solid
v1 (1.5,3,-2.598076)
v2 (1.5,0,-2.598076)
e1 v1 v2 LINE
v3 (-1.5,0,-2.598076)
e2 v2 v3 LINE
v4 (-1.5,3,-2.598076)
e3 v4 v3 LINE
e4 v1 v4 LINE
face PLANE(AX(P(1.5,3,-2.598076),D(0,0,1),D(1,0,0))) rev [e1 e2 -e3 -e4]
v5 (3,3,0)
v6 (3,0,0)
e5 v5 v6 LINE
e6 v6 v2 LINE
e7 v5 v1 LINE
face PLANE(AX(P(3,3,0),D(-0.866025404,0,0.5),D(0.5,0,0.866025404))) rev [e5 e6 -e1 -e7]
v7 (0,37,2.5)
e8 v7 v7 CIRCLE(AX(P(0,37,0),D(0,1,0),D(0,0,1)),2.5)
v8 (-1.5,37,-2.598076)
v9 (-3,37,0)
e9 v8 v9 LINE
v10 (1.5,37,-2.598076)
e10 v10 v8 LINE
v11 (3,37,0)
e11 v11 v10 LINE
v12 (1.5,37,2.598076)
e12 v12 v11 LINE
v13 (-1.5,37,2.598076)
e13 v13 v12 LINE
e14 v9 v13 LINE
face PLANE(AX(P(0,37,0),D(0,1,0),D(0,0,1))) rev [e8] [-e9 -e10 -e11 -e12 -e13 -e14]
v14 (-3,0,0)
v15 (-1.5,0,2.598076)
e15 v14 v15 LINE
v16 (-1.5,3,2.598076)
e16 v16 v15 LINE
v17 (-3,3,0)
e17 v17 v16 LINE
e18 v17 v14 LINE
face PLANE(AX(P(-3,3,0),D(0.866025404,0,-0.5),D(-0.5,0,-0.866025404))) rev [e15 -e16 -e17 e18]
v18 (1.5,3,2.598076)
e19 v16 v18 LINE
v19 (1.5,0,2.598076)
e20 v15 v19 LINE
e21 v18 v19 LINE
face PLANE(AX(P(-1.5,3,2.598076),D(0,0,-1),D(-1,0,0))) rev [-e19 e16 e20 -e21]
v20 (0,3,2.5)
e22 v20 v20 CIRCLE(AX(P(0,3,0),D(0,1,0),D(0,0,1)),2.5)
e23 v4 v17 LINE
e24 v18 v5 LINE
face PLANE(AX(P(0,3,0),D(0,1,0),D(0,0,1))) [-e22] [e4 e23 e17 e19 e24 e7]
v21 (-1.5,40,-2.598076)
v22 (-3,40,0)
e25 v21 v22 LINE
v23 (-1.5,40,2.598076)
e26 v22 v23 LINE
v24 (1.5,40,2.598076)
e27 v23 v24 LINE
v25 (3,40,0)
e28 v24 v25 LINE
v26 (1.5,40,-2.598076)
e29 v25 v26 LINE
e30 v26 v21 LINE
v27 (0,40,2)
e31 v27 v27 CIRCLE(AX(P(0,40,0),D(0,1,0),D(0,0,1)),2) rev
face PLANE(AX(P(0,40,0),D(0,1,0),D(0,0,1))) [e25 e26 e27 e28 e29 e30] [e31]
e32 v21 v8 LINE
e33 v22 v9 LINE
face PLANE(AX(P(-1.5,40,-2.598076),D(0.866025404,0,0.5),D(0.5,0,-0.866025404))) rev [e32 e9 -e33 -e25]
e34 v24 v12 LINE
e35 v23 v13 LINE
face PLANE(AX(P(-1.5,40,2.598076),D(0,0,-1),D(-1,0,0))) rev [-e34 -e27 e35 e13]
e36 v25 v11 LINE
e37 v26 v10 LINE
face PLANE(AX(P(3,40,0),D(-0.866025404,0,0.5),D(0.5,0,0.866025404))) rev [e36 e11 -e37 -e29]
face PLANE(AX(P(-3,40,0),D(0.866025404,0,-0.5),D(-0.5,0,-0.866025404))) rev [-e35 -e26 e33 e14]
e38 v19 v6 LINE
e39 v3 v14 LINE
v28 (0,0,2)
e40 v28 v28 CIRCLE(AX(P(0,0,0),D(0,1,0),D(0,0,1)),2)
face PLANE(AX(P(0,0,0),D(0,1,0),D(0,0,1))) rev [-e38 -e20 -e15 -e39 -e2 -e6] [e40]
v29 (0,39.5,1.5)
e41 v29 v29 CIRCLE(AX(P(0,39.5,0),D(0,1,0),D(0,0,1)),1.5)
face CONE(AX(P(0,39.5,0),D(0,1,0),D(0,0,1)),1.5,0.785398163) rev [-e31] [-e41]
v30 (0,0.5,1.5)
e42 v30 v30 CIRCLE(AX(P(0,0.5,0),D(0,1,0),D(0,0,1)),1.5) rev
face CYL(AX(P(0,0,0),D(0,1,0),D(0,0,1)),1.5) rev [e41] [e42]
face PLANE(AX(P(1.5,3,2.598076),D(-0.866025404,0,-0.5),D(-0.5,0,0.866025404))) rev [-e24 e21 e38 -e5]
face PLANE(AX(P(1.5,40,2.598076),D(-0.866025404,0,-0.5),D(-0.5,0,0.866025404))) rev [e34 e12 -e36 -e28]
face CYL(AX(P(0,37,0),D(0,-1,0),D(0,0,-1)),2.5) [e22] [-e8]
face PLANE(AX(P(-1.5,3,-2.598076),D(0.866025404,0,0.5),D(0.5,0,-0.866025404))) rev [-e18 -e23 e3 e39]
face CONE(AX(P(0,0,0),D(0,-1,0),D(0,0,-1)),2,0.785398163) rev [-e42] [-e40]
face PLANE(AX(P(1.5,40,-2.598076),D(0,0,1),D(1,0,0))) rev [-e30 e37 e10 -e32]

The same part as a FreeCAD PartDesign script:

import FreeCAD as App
import Part
import Sketcher
Q = App.Units.Quantity


def edges_at(feature, points):
    """Names of the edges that pass closest to the given points."""
    edges = feature.Shape.Edges
    near = lambda p: min(range(len(edges)), key=lambda i: edges[i].distToShape(Part.Vertex(*p))[0])
    return sorted({f"Edge{near(p) + 1}" for p in points})


def add_polygon(sketch, points):
    """Adds a closed chain of lines whose ends are joined by coincident constraints."""
    first, n = sketch.GeometryCount, len(points)
    for a, b in zip(points, points[1:] + points[:1]):
        sketch.addGeometry(Part.LineSegment(App.Vector(*a, 0), App.Vector(*b, 0)), False)
    for i in range(n):
        sketch.addConstraint(Sketcher.Constraint("Coincident", first + i, 2, first + (i + 1) % n, 1))

doc = App.newDocument("Part")
body = doc.addObject("PartDesign::Body", "Body")

sketch1 = doc.addObject("Sketcher::SketchObject", "Sketch")
body.addObject(sketch1)
sketch1.AttachmentSupport = (doc.XZ_Plane, [""])
sketch1.MapMode = "FlatFace"
add_polygon(sketch1, [(1.5, 2.6), (3, 0), (1.5, -2.6), (-1.5, -2.6), (-3, 0), (-1.5, 2.6)])
sketch1.addConstraint(Sketcher.Constraint("Horizontal", 2))
sketch1.addConstraint(Sketcher.Constraint("Horizontal", 5))
sketch1.addConstraint(Sketcher.Constraint("Symmetric", 0, 2, 3, 2, -1, 1))
sketch1.addConstraint(Sketcher.Constraint("Symmetric", 1, 2, 4, 2, -1, 1))
sketch1.addConstraint(Sketcher.Constraint("PointOnObject", 0, 2, -1))
sketch1.addConstraint(Sketcher.Constraint("Parallel", 0, 3))
sketch1.addConstraint(Sketcher.Constraint("Vertical", 2, 2, 4, 2))
sketch1.addConstraint(Sketcher.Constraint("DistanceX", 2, 2, 2, 1, 3.0))
sketch1.addConstraint(Sketcher.Constraint("Angle", 0, Q("-60 deg")))
sketch1.addConstraint(Sketcher.Constraint("Distance", 0, 3.0))
pad1 = doc.addObject("PartDesign::Pad", "Pad")
body.addObject(pad1)
pad1.Profile = sketch1
pad1.Length = 3
pad1.Reversed = True

sketch2 = doc.addObject("Sketcher::SketchObject", "Sketch001")
body.addObject(sketch2)
sketch2.AttachmentSupport = (doc.XZ_Plane, [""])
sketch2.MapMode = "FlatFace"
sketch2.AttachmentOffset = App.Placement(App.Vector(0, 0, -3), App.Rotation())
sketch2.addGeometry(Part.Circle(App.Vector(0, 0, 0), App.Vector(0, 0, 1), 2.5), False)
sketch2.addConstraint(Sketcher.Constraint("Coincident", 0, 3, -1, 1))
sketch2.addConstraint(Sketcher.Constraint("Diameter", 0, 5.0))
pad2 = doc.addObject("PartDesign::Pad", "Pad001")
body.addObject(pad2)
pad2.Profile = sketch2
pad2.Length = 34
pad2.Reversed = True

sketch3 = doc.addObject("Sketcher::SketchObject", "Sketch002")
body.addObject(sketch3)
sketch3.AttachmentSupport = (doc.XZ_Plane, [""])
sketch3.MapMode = "FlatFace"
sketch3.AttachmentOffset = App.Placement(App.Vector(0, 0, -37), App.Rotation())
add_polygon(sketch3, [(1.5, 2.6), (3, 0), (1.5, -2.6), (-1.5, -2.6), (-3, 0), (-1.5, 2.6)])
sketch3.addConstraint(Sketcher.Constraint("Horizontal", 2))
sketch3.addConstraint(Sketcher.Constraint("Horizontal", 5))
sketch3.addConstraint(Sketcher.Constraint("Symmetric", 0, 2, 3, 2, -1, 1))
sketch3.addConstraint(Sketcher.Constraint("Symmetric", 1, 2, 4, 2, -1, 1))
sketch3.addConstraint(Sketcher.Constraint("PointOnObject", 0, 2, -1))
sketch3.addConstraint(Sketcher.Constraint("Parallel", 0, 3))
sketch3.addConstraint(Sketcher.Constraint("Vertical", 2, 2, 4, 2))
sketch3.addConstraint(Sketcher.Constraint("DistanceX", 2, 2, 2, 1, 3.0))
sketch3.addConstraint(Sketcher.Constraint("Angle", 0, Q("-60 deg")))
sketch3.addConstraint(Sketcher.Constraint("Distance", 0, 3.0))
pad3 = doc.addObject("PartDesign::Pad", "Pad002")
body.addObject(pad3)
pad3.Profile = sketch3
pad3.Length = 3
pad3.Reversed = True

sketch4 = doc.addObject("Sketcher::SketchObject", "Sketch003")
body.addObject(sketch4)
sketch4.AttachmentSupport = (doc.XZ_Plane, [""])
sketch4.MapMode = "FlatFace"
sketch4.AttachmentOffset = App.Placement(App.Vector(0, 0, -40), App.Rotation())
sketch4.addGeometry(Part.Circle(App.Vector(0, 0, 0), App.Vector(0, 0, 1), 1.5), False)
sketch4.addConstraint(Sketcher.Constraint("Coincident", 0, 3, -1, 1))
sketch4.addConstraint(Sketcher.Constraint("Diameter", 0, 3.0))
pocket1 = doc.addObject("PartDesign::Pocket", "Pocket")
body.addObject(pocket1)
pocket1.Profile = sketch4
pocket1.Type = "ThroughAll"
pocket1.Reversed = True
doc.recompute()

chamfer = doc.addObject("PartDesign::Chamfer", "Chamfer")
body.addObject(chamfer)
chamfer.Base = (pocket1, edges_at(pocket1, [(-1.5, 0, 0), (-1.5, 40, 0)]))
chamfer.Size = 0.5

doc.recompute()
